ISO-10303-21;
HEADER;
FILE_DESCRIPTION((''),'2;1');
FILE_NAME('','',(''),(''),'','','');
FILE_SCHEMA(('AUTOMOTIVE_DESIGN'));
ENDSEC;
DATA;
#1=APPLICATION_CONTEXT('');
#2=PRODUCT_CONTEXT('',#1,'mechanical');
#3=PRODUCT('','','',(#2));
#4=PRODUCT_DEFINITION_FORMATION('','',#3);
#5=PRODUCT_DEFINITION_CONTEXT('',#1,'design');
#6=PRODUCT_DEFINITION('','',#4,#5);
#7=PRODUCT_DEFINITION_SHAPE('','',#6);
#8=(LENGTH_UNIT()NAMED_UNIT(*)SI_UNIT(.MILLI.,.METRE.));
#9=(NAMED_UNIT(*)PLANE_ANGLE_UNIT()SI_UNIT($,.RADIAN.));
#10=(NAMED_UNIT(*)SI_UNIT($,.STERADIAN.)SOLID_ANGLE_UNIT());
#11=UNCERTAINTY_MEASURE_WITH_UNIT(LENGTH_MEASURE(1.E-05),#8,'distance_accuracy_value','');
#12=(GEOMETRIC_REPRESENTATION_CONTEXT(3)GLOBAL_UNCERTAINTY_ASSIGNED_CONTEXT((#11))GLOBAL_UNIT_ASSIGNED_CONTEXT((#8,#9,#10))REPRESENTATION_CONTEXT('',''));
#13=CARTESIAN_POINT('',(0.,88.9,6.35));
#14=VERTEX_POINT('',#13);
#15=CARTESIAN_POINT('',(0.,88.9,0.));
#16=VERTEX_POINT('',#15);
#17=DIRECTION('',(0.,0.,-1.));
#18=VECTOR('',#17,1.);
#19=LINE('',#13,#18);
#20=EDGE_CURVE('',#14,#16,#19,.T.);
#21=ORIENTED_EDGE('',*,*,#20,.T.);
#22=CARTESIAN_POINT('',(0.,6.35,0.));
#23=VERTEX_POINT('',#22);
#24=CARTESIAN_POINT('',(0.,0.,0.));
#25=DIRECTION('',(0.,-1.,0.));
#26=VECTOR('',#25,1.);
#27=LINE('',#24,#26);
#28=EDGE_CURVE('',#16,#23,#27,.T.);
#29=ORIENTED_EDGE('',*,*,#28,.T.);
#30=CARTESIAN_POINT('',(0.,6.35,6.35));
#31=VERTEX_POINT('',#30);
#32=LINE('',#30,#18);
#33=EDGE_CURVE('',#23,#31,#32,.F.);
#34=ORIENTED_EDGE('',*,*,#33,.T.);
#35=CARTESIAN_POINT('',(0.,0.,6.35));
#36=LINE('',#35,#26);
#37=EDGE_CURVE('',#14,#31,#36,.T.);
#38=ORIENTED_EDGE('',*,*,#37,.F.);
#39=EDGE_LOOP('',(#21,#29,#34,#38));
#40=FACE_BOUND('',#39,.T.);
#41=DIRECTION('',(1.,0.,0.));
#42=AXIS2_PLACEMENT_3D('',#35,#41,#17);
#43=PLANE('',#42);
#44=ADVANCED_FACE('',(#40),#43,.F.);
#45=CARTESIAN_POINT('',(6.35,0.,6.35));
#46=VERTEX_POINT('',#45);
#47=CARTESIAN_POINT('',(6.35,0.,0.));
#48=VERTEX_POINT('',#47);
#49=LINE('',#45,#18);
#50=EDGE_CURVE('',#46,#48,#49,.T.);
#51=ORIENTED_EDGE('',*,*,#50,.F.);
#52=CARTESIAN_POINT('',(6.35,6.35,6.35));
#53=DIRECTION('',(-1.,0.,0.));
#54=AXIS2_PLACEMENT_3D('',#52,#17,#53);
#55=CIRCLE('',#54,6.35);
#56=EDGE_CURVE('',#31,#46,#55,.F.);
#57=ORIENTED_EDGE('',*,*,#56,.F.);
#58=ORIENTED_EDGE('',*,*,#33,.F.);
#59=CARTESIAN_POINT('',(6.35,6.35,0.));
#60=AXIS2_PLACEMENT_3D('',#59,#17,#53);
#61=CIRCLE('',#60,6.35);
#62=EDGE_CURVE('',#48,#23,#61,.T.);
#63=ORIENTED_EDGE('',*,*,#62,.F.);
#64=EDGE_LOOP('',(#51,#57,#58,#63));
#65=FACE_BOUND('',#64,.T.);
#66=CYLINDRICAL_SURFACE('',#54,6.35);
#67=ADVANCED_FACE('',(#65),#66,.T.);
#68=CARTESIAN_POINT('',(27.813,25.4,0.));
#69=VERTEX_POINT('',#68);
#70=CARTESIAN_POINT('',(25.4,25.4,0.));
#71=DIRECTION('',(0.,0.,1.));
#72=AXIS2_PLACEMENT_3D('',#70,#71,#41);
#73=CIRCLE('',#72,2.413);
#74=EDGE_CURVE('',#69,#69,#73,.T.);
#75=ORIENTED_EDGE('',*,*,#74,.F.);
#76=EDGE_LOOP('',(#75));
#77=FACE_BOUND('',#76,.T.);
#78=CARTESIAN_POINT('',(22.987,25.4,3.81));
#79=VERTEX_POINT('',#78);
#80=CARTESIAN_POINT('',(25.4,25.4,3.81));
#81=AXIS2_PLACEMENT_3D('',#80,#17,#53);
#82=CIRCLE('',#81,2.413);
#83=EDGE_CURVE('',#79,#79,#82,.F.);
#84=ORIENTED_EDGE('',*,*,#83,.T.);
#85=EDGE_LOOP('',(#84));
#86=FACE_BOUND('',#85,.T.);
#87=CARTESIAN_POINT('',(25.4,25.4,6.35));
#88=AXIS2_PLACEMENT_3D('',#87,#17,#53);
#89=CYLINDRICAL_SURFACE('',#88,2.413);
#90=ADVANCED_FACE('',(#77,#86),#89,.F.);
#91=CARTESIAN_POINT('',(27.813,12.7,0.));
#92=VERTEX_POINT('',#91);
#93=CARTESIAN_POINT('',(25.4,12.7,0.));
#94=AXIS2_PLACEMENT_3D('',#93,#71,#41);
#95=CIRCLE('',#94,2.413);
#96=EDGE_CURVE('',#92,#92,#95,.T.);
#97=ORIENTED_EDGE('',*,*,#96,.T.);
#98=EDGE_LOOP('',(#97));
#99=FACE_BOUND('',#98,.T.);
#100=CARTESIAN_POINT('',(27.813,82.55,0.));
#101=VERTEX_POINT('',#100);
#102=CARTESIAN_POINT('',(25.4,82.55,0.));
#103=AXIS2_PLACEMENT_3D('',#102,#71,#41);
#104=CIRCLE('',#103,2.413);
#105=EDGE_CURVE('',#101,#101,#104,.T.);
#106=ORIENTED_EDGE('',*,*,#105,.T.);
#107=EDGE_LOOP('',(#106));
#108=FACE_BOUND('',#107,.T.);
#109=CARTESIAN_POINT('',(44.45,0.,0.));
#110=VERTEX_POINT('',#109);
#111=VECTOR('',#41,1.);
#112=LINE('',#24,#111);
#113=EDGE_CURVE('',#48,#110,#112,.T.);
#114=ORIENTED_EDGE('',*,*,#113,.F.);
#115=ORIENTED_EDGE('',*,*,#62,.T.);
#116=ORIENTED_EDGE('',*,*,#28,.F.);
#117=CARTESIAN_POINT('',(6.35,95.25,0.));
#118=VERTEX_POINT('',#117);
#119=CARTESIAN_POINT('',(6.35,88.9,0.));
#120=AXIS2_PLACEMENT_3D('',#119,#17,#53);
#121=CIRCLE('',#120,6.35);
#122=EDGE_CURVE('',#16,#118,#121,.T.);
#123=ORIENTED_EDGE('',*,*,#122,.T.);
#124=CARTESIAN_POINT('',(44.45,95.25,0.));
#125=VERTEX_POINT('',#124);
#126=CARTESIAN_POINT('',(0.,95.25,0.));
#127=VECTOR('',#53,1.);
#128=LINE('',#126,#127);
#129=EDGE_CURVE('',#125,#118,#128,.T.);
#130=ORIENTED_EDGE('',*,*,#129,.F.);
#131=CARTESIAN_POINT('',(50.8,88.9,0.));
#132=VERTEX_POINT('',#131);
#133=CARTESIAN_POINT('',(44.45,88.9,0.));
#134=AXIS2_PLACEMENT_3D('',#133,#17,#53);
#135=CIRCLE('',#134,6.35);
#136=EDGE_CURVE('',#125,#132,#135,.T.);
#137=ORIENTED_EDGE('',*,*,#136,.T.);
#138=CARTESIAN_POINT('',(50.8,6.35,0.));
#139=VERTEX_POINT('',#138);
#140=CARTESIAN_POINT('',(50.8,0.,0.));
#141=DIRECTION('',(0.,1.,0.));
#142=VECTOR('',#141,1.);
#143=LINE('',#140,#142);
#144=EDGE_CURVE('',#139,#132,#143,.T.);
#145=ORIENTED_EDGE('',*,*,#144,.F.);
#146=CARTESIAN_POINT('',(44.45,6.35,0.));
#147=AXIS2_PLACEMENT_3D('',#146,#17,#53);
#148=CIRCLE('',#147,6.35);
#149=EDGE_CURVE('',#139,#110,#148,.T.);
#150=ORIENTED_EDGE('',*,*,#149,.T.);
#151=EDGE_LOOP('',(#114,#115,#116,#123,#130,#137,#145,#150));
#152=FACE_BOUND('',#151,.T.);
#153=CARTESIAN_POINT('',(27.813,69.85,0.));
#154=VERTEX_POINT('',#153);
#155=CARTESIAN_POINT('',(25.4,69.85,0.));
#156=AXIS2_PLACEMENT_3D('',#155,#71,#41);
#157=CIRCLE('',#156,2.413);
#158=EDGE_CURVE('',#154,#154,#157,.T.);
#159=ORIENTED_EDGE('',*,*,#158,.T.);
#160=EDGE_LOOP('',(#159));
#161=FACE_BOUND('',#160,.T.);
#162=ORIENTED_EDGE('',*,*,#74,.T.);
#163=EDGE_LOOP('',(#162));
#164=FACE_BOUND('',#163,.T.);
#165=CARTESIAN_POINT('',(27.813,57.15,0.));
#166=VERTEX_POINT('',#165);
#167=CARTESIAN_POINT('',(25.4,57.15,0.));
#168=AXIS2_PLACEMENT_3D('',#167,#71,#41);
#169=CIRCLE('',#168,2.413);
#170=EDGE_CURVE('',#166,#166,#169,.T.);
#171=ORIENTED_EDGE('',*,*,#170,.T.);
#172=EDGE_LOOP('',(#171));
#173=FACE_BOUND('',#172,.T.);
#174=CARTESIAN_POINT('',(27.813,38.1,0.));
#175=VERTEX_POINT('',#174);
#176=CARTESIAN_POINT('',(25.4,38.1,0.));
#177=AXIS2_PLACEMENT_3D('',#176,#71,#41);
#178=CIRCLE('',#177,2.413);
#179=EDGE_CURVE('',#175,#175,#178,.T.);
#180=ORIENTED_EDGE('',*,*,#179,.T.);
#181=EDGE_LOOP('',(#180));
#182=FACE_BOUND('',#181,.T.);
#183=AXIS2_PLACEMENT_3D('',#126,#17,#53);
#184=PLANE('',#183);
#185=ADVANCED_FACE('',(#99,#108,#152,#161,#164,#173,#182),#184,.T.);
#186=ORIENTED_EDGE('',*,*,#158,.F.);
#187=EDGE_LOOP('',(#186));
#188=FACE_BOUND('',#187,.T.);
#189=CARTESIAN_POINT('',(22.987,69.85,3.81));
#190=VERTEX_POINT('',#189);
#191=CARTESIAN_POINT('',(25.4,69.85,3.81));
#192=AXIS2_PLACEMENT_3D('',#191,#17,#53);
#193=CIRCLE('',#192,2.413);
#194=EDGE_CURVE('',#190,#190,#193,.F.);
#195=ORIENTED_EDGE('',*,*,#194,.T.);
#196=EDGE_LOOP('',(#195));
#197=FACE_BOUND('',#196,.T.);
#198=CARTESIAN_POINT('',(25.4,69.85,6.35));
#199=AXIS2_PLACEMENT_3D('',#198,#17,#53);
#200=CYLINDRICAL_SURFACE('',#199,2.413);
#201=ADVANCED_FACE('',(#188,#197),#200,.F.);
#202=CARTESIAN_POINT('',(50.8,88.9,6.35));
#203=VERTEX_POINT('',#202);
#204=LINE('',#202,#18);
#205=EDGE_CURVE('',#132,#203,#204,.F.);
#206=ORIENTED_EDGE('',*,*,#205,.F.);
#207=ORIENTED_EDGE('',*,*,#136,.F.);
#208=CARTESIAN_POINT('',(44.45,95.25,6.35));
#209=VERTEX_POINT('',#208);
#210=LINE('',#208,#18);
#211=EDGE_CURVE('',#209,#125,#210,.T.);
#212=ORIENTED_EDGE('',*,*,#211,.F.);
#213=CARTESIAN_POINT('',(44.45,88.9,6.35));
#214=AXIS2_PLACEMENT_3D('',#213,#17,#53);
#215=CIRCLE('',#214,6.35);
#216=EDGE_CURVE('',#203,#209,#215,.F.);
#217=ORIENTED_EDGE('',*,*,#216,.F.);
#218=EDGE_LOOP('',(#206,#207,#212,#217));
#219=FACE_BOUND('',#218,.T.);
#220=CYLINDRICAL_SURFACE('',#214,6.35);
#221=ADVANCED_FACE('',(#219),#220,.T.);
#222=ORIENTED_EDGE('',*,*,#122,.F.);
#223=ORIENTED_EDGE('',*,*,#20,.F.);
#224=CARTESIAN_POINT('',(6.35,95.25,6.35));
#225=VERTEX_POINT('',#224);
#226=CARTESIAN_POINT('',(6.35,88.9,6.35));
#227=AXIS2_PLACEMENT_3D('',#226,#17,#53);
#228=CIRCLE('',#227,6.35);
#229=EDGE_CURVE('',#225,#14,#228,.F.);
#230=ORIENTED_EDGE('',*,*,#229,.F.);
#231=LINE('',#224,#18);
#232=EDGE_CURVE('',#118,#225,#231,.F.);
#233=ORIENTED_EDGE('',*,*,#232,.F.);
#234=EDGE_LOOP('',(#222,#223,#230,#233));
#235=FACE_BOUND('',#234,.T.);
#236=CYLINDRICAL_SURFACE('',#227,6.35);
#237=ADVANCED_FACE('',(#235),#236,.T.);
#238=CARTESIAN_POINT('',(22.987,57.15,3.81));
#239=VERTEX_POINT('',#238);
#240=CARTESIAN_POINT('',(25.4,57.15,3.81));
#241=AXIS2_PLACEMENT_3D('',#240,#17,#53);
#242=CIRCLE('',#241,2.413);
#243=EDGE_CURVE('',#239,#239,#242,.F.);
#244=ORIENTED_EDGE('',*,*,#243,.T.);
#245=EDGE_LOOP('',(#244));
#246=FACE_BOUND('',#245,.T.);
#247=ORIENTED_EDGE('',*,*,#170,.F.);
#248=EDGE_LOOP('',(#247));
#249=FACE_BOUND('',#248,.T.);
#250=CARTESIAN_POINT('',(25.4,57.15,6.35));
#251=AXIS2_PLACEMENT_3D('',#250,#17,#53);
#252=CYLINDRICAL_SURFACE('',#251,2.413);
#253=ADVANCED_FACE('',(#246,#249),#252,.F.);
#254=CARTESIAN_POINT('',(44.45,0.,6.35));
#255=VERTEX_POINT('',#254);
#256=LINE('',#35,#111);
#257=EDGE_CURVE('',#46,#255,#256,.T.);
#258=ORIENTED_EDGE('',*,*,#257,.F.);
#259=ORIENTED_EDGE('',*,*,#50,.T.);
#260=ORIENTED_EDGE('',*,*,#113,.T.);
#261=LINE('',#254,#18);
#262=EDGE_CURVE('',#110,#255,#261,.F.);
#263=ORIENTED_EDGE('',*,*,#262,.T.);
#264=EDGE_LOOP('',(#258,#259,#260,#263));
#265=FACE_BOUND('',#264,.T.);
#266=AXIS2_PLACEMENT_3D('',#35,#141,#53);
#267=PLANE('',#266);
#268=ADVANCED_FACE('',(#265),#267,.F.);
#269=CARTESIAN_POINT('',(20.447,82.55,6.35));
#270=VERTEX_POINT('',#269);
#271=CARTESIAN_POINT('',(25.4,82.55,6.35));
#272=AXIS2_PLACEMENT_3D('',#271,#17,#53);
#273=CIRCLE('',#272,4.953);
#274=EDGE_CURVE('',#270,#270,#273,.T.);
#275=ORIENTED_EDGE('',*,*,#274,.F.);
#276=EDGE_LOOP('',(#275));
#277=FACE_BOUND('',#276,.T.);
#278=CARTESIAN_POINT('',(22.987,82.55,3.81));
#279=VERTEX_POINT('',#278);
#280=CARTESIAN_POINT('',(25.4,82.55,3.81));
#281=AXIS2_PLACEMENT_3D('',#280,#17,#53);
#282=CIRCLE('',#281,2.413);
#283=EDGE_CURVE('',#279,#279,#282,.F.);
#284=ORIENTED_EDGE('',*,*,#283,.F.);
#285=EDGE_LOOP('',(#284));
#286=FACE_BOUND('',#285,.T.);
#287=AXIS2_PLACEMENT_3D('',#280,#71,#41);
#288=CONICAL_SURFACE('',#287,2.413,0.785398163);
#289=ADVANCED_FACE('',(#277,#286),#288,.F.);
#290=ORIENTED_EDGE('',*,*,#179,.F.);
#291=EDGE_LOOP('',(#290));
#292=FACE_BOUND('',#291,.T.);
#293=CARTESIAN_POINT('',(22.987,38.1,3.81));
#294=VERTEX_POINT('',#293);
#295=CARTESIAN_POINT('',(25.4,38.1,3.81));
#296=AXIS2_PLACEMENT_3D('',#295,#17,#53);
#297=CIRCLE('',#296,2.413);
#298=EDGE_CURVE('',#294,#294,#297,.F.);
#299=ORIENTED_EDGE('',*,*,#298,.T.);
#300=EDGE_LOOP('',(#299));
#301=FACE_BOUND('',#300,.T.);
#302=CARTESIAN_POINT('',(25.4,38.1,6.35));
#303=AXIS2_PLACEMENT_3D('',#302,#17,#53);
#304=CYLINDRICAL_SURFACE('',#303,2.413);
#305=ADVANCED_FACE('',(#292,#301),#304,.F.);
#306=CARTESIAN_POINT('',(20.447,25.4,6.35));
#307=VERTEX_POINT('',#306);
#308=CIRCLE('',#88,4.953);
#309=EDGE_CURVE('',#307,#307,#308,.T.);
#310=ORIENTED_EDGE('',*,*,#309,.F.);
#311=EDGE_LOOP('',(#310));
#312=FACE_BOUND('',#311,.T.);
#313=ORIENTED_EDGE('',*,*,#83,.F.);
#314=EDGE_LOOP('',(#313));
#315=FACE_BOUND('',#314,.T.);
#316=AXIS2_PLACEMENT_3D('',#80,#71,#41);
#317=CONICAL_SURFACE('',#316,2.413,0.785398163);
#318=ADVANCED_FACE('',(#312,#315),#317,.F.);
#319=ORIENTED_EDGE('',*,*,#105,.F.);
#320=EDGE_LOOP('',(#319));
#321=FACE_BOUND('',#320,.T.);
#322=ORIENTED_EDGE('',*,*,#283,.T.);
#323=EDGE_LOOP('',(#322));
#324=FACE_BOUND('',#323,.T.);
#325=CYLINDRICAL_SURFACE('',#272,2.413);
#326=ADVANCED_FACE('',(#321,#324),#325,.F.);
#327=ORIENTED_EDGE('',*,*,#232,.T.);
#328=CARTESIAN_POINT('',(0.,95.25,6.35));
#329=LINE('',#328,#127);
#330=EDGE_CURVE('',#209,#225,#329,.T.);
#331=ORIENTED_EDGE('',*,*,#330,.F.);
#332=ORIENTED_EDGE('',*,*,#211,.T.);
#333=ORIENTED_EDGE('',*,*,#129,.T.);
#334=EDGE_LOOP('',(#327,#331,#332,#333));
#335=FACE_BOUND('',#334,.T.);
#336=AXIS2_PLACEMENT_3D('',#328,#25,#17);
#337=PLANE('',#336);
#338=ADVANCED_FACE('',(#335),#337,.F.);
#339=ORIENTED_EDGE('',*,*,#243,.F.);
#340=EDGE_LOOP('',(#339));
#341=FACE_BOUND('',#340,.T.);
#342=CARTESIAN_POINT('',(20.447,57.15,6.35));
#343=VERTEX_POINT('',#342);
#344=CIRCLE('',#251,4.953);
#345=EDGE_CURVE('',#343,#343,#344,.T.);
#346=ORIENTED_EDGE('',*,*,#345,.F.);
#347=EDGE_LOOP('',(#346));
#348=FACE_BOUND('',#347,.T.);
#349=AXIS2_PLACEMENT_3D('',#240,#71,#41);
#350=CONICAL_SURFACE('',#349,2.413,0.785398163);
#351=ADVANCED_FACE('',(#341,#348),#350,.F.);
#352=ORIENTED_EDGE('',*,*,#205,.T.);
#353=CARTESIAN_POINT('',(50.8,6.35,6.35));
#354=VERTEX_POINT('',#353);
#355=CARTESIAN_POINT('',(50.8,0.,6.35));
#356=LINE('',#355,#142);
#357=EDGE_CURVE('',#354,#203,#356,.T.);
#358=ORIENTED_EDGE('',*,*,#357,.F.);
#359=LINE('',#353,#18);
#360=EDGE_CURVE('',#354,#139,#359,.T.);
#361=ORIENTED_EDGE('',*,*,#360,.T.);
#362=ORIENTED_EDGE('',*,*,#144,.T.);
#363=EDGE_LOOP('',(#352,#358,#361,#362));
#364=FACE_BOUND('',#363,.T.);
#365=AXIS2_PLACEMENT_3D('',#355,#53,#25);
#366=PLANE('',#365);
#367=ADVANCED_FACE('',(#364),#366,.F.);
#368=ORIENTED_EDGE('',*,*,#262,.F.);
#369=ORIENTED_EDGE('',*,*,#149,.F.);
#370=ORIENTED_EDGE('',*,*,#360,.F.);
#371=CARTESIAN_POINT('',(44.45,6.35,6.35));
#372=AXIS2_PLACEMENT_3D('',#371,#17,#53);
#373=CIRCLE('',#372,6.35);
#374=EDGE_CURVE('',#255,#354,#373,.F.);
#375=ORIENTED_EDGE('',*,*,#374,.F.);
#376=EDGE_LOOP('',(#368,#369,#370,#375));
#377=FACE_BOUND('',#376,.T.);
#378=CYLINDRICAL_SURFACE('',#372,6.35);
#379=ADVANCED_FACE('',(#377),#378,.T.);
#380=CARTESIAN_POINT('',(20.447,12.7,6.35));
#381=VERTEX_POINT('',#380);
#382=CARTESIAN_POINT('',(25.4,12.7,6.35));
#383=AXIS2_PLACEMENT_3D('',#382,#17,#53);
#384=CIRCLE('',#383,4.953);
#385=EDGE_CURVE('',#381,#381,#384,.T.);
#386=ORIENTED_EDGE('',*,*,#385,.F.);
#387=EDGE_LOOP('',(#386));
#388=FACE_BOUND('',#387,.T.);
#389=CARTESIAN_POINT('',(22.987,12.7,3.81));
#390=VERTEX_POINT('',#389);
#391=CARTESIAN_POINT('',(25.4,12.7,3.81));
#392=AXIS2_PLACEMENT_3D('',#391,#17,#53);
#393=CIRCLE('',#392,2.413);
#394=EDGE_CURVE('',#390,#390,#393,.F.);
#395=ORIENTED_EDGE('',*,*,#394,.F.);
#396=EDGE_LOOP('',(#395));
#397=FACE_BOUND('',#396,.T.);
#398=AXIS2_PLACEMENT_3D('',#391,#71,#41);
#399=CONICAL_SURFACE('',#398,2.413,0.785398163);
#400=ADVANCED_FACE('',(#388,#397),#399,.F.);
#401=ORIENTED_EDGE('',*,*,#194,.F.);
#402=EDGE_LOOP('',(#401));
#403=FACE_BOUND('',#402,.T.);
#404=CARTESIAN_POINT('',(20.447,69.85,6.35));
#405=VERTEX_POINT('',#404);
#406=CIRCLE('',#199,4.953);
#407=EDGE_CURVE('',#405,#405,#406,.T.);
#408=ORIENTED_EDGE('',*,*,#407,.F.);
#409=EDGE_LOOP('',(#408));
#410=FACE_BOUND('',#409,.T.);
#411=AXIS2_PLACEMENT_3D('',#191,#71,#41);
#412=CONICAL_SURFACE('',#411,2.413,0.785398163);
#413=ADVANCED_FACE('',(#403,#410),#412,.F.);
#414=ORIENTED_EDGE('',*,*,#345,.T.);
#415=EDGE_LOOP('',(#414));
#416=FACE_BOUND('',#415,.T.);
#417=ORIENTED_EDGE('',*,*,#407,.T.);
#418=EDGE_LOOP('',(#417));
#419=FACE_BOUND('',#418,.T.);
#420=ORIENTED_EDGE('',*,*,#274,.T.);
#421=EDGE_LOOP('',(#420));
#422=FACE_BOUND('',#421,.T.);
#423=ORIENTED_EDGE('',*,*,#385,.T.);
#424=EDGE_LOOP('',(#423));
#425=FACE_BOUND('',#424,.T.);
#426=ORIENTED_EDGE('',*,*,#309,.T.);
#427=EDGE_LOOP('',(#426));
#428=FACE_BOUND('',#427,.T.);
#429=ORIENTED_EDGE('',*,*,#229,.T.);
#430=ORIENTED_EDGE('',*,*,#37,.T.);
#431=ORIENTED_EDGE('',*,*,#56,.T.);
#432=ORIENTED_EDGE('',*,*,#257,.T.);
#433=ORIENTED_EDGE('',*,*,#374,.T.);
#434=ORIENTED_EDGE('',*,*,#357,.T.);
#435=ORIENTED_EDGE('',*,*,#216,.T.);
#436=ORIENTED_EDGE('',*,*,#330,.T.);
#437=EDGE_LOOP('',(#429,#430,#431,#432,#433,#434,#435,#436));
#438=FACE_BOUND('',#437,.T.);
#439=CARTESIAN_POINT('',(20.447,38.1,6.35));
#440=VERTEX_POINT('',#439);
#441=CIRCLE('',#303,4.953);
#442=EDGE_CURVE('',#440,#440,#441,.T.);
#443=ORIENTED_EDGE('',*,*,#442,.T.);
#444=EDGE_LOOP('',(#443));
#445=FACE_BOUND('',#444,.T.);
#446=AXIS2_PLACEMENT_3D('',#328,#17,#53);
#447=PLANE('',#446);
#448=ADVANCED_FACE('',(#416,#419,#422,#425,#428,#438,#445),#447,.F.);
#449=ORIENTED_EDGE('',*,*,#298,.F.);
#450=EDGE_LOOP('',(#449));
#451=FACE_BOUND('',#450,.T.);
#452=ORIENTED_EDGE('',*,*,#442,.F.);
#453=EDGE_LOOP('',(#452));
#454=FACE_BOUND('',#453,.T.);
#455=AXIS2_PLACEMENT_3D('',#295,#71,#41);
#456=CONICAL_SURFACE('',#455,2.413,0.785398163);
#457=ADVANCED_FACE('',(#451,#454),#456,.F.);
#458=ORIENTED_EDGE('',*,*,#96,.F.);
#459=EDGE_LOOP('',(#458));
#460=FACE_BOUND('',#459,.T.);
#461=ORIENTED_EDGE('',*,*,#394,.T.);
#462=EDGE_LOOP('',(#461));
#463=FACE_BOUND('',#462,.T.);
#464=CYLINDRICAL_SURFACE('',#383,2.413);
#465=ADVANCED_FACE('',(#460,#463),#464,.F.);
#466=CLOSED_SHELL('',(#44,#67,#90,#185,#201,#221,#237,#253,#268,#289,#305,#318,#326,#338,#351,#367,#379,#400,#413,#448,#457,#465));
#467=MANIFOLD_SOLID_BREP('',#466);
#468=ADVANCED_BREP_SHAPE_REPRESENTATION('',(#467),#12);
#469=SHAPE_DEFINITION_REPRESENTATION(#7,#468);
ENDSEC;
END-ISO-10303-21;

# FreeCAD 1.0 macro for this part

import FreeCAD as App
import Part
import Sketcher

V = App.Vector
Q = App.Units.Quantity


def edges_at(feature, points):
    """Names of the edges that pass closest to the given points."""
    edges = feature.Shape.Edges
    near = lambda p: min(range(len(edges)), key=lambda i: edges[i].distToShape(Part.Vertex(*p))[0])
    return sorted({f"Edge{near(p) + 1}" for p in points})


def add_polygon(sketch, points):
    """Adds a closed chain of lines whose ends are joined by coincident constraints."""
    first, n = sketch.GeometryCount, len(points)
    for a, b in zip(points, points[1:] + points[:1]):
        sketch.addGeometry(Part.LineSegment(App.Vector(*a, 0), App.Vector(*b, 0)), False)
    for i in range(n):
        sketch.addConstraint(Sketcher.Constraint("Coincident", first + i, 2, first + (i + 1) % n, 1))

doc = App.newDocument("Part")
body = doc.addObject("PartDesign::Body", "Body")

sketch1 = doc.addObject("Sketcher::SketchObject", "Sketch")
body.addObject(sketch1)
sketch1.AttachmentSupport = (doc.XY_Plane, [""])
sketch1.MapMode = "FlatFace"
add_polygon(sketch1, [(0, 95.25), (0, 0), (50.8, 0), (50.8, 95.25)])
sketch1.addGeometry(Part.Circle(V(25.4, 12.7, 0), V(0, 0, 1), 2.413), False)
sketch1.addGeometry(Part.Circle(V(25.4, 25.4, 0), V(0, 0, 1), 2.413), False)
sketch1.addGeometry(Part.Circle(V(25.4, 38.1, 0), V(0, 0, 1), 2.413), False)
sketch1.addGeometry(Part.Circle(V(25.4, 57.15, 0), V(0, 0, 1), 2.413), False)
sketch1.addGeometry(Part.Circle(V(25.4, 69.85, 0), V(0, 0, 1), 2.413), False)
sketch1.addGeometry(Part.Circle(V(25.4, 82.55, 0), V(0, 0, 1), 2.413), False)
sketch1.addConstraint([
    Sketcher.Constraint("Vertical", 0),
    Sketcher.Constraint("Horizontal", 1),
    Sketcher.Constraint("Vertical", 2),
    Sketcher.Constraint("Horizontal", 3),
    Sketcher.Constraint("Coincident", 0, 2, -1, 1),
    Sketcher.Constraint("Equal", 4, 5),
    Sketcher.Constraint("Equal", 5, 6),
    Sketcher.Constraint("Equal", 6, 7),
    Sketcher.Constraint("Equal", 7, 8),
    Sketcher.Constraint("Equal", 8, 9),
    Sketcher.Constraint("Vertical", 4, 3, 5, 3),
    Sketcher.Constraint("Vertical", 5, 3, 6, 3),
    Sketcher.Constraint("Vertical", 6, 3, 7, 3),
    Sketcher.Constraint("Vertical", 7, 3, 8, 3),
    Sketcher.Constraint("Vertical", 8, 3, 9, 3),
    Sketcher.Constraint("Diameter", 4, Q("0.19 in")),
    Sketcher.Constraint("DistanceX", 1, 1, 1, 2, Q("2 in")),
    Sketcher.Constraint("DistanceX", -1, 1, 4, 3, Q("1 in")),
    Sketcher.Constraint("DistanceY", -1, 1, 5, 3, Q("1 in")),
    Sketcher.Constraint("DistanceY", 4, 3, 6, 3, Q("1 in")),
    Sketcher.Constraint("DistanceY", 7, 3, 9, 3, Q("1 in")),
    Sketcher.Constraint("DistanceY", 8, 3, 2, 2, Q("1 in")),
    Sketcher.Constraint("DistanceY", 0, 2, 0, 1, Q("3.75 in")),
    Sketcher.Constraint("DistanceY", -1, 1, 4, 3, Q("0.5 in")),
    Sketcher.Constraint("DistanceY", 7, 3, 8, 3, Q("0.5 in")),
])
pad1 = doc.addObject("PartDesign::Pad", "Pad")
body.addObject(pad1)
pad1.Profile = sketch1
pad1.Length = Q("0.25 in")
doc.recompute()

fillet = doc.addObject("PartDesign::Fillet", "Fillet")
body.addObject(fillet)
fillet.Base = (pad1, edges_at(pad1, [
    (0, 95.25, 3.175),
    (50.8, 95.25, 3.175),
    (50.8, 0, 3.175),
    (0, 0, 3.175),
]))
fillet.Radius = Q("0.25 in")
doc.recompute()

chamfer = doc.addObject("PartDesign::Chamfer", "Chamfer")
body.addObject(chamfer)
chamfer.Base = (fillet, edges_at(fillet, [
    (22.987, 69.85, 6.35),
    (22.987, 25.4, 6.35),
    (22.987, 57.15, 6.35),
    (22.987, 12.7, 6.35),
    (22.987, 38.1, 6.35),
    (22.987, 82.55, 6.35),
]))
chamfer.Size = Q("0.1 in")

doc.recompute()
